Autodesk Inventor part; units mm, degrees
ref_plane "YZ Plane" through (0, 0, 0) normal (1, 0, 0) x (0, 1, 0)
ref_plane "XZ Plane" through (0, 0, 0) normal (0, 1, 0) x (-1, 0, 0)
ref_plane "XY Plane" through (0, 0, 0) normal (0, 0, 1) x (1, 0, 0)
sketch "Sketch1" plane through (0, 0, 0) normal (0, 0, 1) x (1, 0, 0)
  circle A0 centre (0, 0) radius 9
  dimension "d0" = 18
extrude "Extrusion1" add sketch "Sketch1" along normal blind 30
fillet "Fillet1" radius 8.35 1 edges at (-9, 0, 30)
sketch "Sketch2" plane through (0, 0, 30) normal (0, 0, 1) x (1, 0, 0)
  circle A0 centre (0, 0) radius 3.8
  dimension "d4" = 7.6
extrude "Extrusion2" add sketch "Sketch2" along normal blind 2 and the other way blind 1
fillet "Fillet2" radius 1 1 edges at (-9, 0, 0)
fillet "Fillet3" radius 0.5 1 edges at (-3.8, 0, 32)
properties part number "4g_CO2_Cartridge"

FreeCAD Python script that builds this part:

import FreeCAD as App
import Part
import Sketcher

V = App.Vector
Q = App.Units.Quantity


def edges_at(feature, points):
    """Names of the edges that pass closest to the given points."""
    edges = feature.Shape.Edges
    near = lambda p: min(range(len(edges)), key=lambda i: edges[i].distToShape(Part.Vertex(*p))[0])
    return sorted({f"Edge{near(p) + 1}" for p in points})

doc = App.newDocument("Part")
body = doc.addObject("PartDesign::Body", "Body")

# Sketch on XY plane
sketch1 = doc.addObject("Sketcher::SketchObject", "Sketch")
body.addObject(sketch1)
sketch1.AttachmentSupport = (doc.XY_Plane, [""])
sketch1.MapMode = "FlatFace"
sketch1.addGeometry(Part.Circle(V(0, 0, 0), V(0, 0, 1), 9), False)
sketch1.addConstraint(Sketcher.Constraint("Coincident", 0, 3, -1, 1))
sketch1.addConstraint(Sketcher.Constraint("Diameter", 0, Q("18 mm")))
pad1 = doc.addObject("PartDesign::Pad", "Pad")
body.addObject(pad1)
pad1.Profile = sketch1
pad1.Length = 30
doc.recompute()

fillet = doc.addObject("PartDesign::Fillet", "Fillet")
body.addObject(fillet)
fillet.Base = (pad1, edges_at(pad1, [(-9, 0, 30)]))
fillet.Radius = 8.35

# Sketch on XY plane
sketch2 = doc.addObject("Sketcher::SketchObject", "Sketch001")
body.addObject(sketch2)
sketch2.AttachmentSupport = (doc.XY_Plane, [""])
sketch2.MapMode = "FlatFace"
sketch2.AttachmentOffset = App.Placement(V(0, 0, 30), App.Rotation())
sketch2.addGeometry(Part.Circle(V(0, 0, 0), V(0, 0, 1), 3.8), False)
sketch2.addConstraint(Sketcher.Constraint("Coincident", 0, 3, -1, 1))
sketch2.addConstraint(Sketcher.Constraint("Diameter", 0, Q("7.6 mm")))
pad2 = doc.addObject("PartDesign::Pad", "Pad001")
body.addObject(pad2)
pad2.Profile = sketch2
pad2.Type = "TwoLengths"
pad2.Length = 2
pad2.Length2 = 1
doc.recompute()

fillet2 = doc.addObject("PartDesign::Fillet", "Fillet001")
body.addObject(fillet2)
fillet2.Base = (pad2, edges_at(pad2, [(-9, 0, 0)]))
fillet2.Radius = 1
doc.recompute()

fillet3 = doc.addObject("PartDesign::Fillet", "Fillet002")
body.addObject(fillet3)
fillet3.Base = (fillet2, edges_at(fillet2, [(-3.8, 0, 32)]))
fillet3.Radius = 0.5

doc.recompute()
